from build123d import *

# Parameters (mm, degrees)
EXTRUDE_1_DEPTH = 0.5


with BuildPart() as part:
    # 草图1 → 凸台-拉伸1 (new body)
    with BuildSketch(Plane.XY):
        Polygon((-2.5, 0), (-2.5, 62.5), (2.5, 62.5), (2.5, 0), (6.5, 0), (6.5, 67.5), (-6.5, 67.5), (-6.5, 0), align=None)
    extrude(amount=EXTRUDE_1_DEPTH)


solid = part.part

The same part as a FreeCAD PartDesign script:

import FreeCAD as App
import Part
import Sketcher

V = App.Vector
Q = App.Units.Quantity

doc = App.newDocument("Part")
body = doc.addObject("PartDesign::Body", "Body")

# Sketch on XY plane
sketch1 = body.newObject("Sketcher::SketchObject", "Sketch")
sketch1.AttachmentSupport = (doc.getObject("XY_Plane"), [""])
sketch1.MapMode = "FlatFace"
sketch1.addGeometry([
    Part.LineSegment(V(-2.5, 0, 0), V(-2.5, 62.5, 0)),  # 0
    Part.LineSegment(V(-2.5, 62.5, 0), V(2.5, 62.5, 0)),  # 1
    Part.LineSegment(V(2.5, 62.5, 0), V(2.5, 0, 0)),  # 2
    Part.LineSegment(V(2.5, 0, 0), V(6.5, 0, 0)),  # 3
    Part.LineSegment(V(6.5, 0, 0), V(6.5, 67.5, 0)),  # 4
    Part.LineSegment(V(6.5, 67.5, 0), V(-6.5, 67.5, 0)),  # 5
    Part.LineSegment(V(-6.5, 67.5, 0), V(-6.5, 0, 0)),  # 6
    Part.LineSegment(V(-6.5, 0, 0), V(-2.5, 0, 0)),  # 7
], False)
sketch1.addConstraint([
    Sketcher.Constraint("Coincident", 0, 2, 1, 1),
    Sketcher.Constraint("Coincident", 1, 2, 2, 1),
    Sketcher.Constraint("Coincident", 2, 2, 3, 1),
    Sketcher.Constraint("Coincident", 3, 2, 4, 1),
    Sketcher.Constraint("Coincident", 4, 2, 5, 1),
    Sketcher.Constraint("Coincident", 5, 2, 6, 1),
    Sketcher.Constraint("Coincident", 6, 2, 7, 1),
    Sketcher.Constraint("Coincident", 7, 2, 0, 1),
    Sketcher.Constraint("Vertical", 0),
    Sketcher.Constraint("Horizontal", 1),
    Sketcher.Constraint("Vertical", 2),
    Sketcher.Constraint("Horizontal", 3),
    Sketcher.Constraint("Vertical", 4),
    Sketcher.Constraint("Horizontal", 5),
    Sketcher.Constraint("Vertical", 6),
    Sketcher.Constraint("Horizontal", 7),
    Sketcher.Constraint("Symmetric", 3, 2, 6, 2, -1, 1),
    Sketcher.Constraint("Symmetric", 2, 2, 7, 2, -2),
    Sketcher.Constraint("DistanceX", 1, 1, 1, 2, Q("5 mm")),
    Sketcher.Constraint("DistanceX", 3, 1, 3, 2, Q("4 mm")),
    Sketcher.Constraint("DistanceY", 0, 1, 0, 2, Q("62.5 mm")),
    Sketcher.Constraint("DistanceY", 4, 1, 4, 2, Q("67.5 mm")),
])
pad1 = body.newObject("PartDesign::Pad", "Pad")
pad1.Profile = sketch1
pad1.Length = 0.5

doc.recompute()
